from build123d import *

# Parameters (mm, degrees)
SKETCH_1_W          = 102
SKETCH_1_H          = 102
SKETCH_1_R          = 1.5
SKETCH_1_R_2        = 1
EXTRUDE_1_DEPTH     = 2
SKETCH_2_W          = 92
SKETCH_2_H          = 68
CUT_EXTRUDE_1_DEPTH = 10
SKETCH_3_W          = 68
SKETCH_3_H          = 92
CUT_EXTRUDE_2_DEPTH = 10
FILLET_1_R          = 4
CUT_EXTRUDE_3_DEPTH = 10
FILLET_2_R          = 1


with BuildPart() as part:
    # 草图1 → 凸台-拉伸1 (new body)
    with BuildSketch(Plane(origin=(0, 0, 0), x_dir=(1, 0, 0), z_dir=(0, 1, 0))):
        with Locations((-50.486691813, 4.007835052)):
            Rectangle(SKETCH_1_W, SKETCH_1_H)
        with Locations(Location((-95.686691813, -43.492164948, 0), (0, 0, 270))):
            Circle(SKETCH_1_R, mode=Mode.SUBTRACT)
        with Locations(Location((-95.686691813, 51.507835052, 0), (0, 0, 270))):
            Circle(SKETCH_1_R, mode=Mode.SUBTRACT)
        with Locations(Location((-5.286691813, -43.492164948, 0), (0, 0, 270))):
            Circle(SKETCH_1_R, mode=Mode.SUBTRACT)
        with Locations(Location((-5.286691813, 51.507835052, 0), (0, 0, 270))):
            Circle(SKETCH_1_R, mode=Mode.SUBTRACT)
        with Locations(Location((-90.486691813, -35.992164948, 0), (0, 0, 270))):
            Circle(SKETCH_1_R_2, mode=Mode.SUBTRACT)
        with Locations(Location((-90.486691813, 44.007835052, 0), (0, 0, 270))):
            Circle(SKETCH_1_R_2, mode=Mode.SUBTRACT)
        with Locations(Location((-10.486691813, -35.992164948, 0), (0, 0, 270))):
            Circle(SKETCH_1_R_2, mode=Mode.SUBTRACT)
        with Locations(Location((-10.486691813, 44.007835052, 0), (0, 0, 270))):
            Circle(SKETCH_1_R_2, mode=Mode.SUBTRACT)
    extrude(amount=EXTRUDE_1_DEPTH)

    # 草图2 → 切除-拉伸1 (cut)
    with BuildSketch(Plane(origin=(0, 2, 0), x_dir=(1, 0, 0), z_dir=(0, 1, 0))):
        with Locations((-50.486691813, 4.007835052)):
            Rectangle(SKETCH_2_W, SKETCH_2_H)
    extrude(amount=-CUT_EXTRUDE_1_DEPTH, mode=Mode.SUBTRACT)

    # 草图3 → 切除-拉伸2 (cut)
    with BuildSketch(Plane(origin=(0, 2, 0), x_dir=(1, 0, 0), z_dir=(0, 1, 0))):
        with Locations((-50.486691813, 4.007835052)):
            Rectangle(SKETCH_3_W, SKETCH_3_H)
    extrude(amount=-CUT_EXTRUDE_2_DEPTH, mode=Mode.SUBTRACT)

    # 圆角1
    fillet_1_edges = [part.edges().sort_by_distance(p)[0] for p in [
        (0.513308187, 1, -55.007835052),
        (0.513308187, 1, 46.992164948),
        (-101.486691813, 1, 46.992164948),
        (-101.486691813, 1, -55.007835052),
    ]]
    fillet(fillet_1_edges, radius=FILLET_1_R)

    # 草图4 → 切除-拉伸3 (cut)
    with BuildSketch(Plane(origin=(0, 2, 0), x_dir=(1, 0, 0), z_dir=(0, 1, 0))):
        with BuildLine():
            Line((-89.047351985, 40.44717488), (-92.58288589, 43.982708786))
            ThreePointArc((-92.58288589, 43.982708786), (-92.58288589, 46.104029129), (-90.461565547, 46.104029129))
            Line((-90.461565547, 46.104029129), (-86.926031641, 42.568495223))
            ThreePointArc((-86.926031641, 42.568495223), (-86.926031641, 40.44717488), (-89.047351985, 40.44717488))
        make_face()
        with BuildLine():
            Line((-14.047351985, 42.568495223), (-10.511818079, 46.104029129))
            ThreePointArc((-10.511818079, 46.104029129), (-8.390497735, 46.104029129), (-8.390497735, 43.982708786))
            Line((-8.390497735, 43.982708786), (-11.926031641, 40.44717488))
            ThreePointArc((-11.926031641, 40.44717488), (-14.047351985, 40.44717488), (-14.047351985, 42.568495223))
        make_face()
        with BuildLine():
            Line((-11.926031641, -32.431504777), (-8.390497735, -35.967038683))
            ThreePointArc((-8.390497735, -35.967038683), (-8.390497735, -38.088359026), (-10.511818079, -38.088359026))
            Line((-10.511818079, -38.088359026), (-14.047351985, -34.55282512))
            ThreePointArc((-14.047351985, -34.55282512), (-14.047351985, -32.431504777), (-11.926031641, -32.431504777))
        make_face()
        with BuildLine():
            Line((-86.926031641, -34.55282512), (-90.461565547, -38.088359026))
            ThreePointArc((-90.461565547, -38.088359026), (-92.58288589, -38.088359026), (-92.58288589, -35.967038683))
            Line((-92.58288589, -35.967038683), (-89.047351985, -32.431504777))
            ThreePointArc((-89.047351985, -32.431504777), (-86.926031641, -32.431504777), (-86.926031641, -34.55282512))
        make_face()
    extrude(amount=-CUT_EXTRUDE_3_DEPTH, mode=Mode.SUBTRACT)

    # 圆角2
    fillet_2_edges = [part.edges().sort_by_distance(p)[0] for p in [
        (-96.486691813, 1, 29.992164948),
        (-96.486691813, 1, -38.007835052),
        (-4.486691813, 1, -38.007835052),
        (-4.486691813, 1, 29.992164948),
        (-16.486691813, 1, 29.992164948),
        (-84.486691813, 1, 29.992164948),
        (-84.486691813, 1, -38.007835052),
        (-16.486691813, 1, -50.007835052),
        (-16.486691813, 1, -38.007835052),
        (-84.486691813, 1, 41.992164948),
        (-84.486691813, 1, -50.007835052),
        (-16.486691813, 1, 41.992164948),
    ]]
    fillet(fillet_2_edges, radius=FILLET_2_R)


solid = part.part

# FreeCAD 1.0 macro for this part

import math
import FreeCAD as App
import Part
import Sketcher

V = App.Vector


def edges_at(feature, points):
    """Names of the edges that pass closest to the given points."""
    edges = feature.Shape.Edges
    near = lambda p: min(range(len(edges)), key=lambda i: edges[i].distToShape(Part.Vertex(*p))[0])
    return sorted({f"Edge{near(p) + 1}" for p in points})


def add_polygon(sketch, points):
    """Adds a closed chain of lines whose ends are joined by coincident constraints."""
    first, n = sketch.GeometryCount, len(points)
    for a, b in zip(points, points[1:] + points[:1]):
        sketch.addGeometry(Part.LineSegment(App.Vector(*a, 0), App.Vector(*b, 0)), False)
    for i in range(n):
        sketch.addConstraint(Sketcher.Constraint("Coincident", first + i, 2, first + (i + 1) % n, 1))

doc = App.newDocument("Part")
params = doc.addObject("Spreadsheet::Sheet", "Params")
for row, (alias, value) in enumerate([
    ("sketch1_diameter", "3 mm"),
    ("sketch1_diameter2", "2 mm"),
    ("sketch1_width", "102 mm"),
    ("pad1_length", "2 mm"),
    ("sketch2_width", "92 mm"),
    ("sketch2_height", "68 mm"),
    ("pocket1_length", "10 mm"),
    ("sketch3_width", "68 mm"),
    ("sketch3_height", "92 mm"),
    ("pocket2_length", "10 mm"),
    ("fillet_radius", "4 mm"),
    ("sketch4_radius", "1.5 mm"),
    ("sketch4_length", "5 mm"),
    ("pocket3_length", "10 mm"),
    ("fillet2_radius", "1 mm"),
], start=1):
    params.set(f"A{row}", alias)
    params.set(f"B{row}", "=" + value)
    params.setAlias(f"B{row}", alias)

body = doc.addObject("PartDesign::Body", "Body")

# Sketch on XZ plane
sketch1 = body.newObject("Sketcher::SketchObject", "Sketch")
sketch1.AttachmentSupport = (doc.getObject("XZ_Plane"), [""])
sketch1.MapMode = "FlatFace"
add_polygon(sketch1, [(-101.486692, -55.007835), (-101.486692, 46.992165), (0.513308, 46.992165), (0.513308, -55.007835)])  # lines 0-3
sketch1.addGeometry(Part.Circle(V(-95.686692, 43.492165, 0), V(0, 0, 1), 1.5), False)  # 4
sketch1.addGeometry(Part.Circle(V(-90.486692, 35.992165, 0), V(0, 0, 1), 1), False)  # 5
sketch1.addGeometry(Part.Circle(V(-5.286692, 43.492165, 0), V(0, 0, 1), 1.5), False)  # 6
sketch1.addGeometry(Part.Circle(V(-10.486692, 35.992165, 0), V(0, 0, 1), 1), False)  # 7
sketch1.addGeometry(Part.Circle(V(-90.486692, -44.007835, 0), V(0, 0, 1), 1), False)  # 8
sketch1.addGeometry(Part.Circle(V(-95.686692, -51.507835, 0), V(0, 0, 1), 1.5), False)  # 9
sketch1.addGeometry(Part.Circle(V(-10.486692, -44.007835, 0), V(0, 0, 1), 1), False)  # 10
sketch1.addGeometry(Part.Circle(V(-5.286692, -51.507835, 0), V(0, 0, 1), 1.5), False)  # 11
sketch1.addConstraint([
    Sketcher.Constraint("Vertical", 0),
    Sketcher.Constraint("Horizontal", 1),
    Sketcher.Constraint("Vertical", 2),
    Sketcher.Constraint("Horizontal", 3),
    Sketcher.Constraint("Equal", 4, 6),
    Sketcher.Constraint("Equal", 5, 7),
    Sketcher.Constraint("Equal", 7, 8),
    Sketcher.Constraint("Equal", 6, 9),
    Sketcher.Constraint("Equal", 8, 10),
    Sketcher.Constraint("Equal", 9, 11),
    Sketcher.Constraint("Horizontal", 4, 3, 6, 3),
    Sketcher.Constraint("Horizontal", 5, 3, 7, 3),
    Sketcher.Constraint("Horizontal", 8, 3, 10, 3),
    Sketcher.Constraint("Horizontal", 9, 3, 11, 3),
    Sketcher.Constraint("Vertical", 5, 3, 8, 3),
    Sketcher.Constraint("Vertical", 4, 3, 9, 3),
    Sketcher.Constraint("Vertical", 7, 3, 10, 3),
    Sketcher.Constraint("Vertical", 6, 3, 11, 3),
    Sketcher.Constraint("Equal", 3, 0),
    Sketcher.Constraint("Diameter", 4, 3.0),
    Sketcher.Constraint("Diameter", 5, 2.0),
    Sketcher.Constraint("DistanceX", 1, 1, 1, 2, 102.0),
    Sketcher.Constraint("DistanceX", 5, 3, 7, 3, 80.0),
    Sketcher.Constraint("DistanceY", 8, 3, 5, 3, 80.0),
    Sketcher.Constraint("DistanceY", 9, 3, 4, 3, 95.0),
    Sketcher.Constraint("DistanceX", 0, 2, 5, 3, 11.0),
    Sketcher.Constraint("DistanceY", 5, 3, 0, 2, 11.0),
    Sketcher.Constraint("DistanceX", 4, 3, 5, 3, 5.2),
    Sketcher.Constraint("DistanceY", 5, 3, 4, 3, 7.5),
    Sketcher.Constraint("DistanceX", 5, 3, 6, 3, 85.2),
    Sketcher.Constraint("DistanceX", 4, 3, -1, 1, 95.686692),
    Sketcher.Constraint("DistanceY", -1, 1, 4, 3, 43.492165),
])
sketch1.setExpression("Constraints[23]", "Params.sketch1_diameter")
sketch1.setExpression("Constraints[24]", "Params.sketch1_diameter2")
sketch1.setExpression("Constraints[25]", "Params.sketch1_width")
pad1 = body.newObject("PartDesign::Pad", "Pad")
pad1.Profile = sketch1
pad1.setExpression("Length", "Params.pad1_length")
pad1.Reversed = True

# Sketch on XZ plane
sketch2 = body.newObject("Sketcher::SketchObject", "Sketch001")
sketch2.AttachmentSupport = (doc.getObject("XZ_Plane"), [""])
sketch2.MapMode = "FlatFace"
sketch2.AttachmentOffset = App.Placement(V(0, 0, -2), App.Rotation())
add_polygon(sketch2, [(-96.486692, -38.007835), (-96.486692, 29.992165), (-4.486692, 29.992165), (-4.486692, -38.007835)])  # lines 0-3
sketch2.addConstraint([
    Sketcher.Constraint("Vertical", 0),
    Sketcher.Constraint("Horizontal", 1),
    Sketcher.Constraint("Vertical", 2),
    Sketcher.Constraint("Horizontal", 3),
    Sketcher.Constraint("DistanceX", 1, 1, 1, 2, 92.0),
    Sketcher.Constraint("DistanceY", 0, 1, 0, 2, 68.0),
    Sketcher.Constraint("DistanceX", 0, 2, -1, 1, 96.486692),
    Sketcher.Constraint("DistanceY", -1, 1, 0, 2, 29.992165),
])
sketch2.setExpression("Constraints[8]", "Params.sketch2_width")
sketch2.setExpression("Constraints[9]", "Params.sketch2_height")
pocket1 = body.newObject("PartDesign::Pocket", "Pocket")
pocket1.Profile = sketch2
pocket1.setExpression("Length", "Params.pocket1_length")
pocket1.Reversed = True

# Sketch on XZ plane
sketch3 = body.newObject("Sketcher::SketchObject", "Sketch002")
sketch3.AttachmentSupport = (doc.getObject("XZ_Plane"), [""])
sketch3.MapMode = "FlatFace"
sketch3.AttachmentOffset = App.Placement(V(0, 0, -2), App.Rotation())
add_polygon(sketch3, [(-84.486692, -50.007835), (-84.486692, 41.992165), (-16.486692, 41.992165), (-16.486692, -50.007835)])  # lines 0-3
sketch3.addConstraint([
    Sketcher.Constraint("Vertical", 0),
    Sketcher.Constraint("Horizontal", 1),
    Sketcher.Constraint("Vertical", 2),
    Sketcher.Constraint("Horizontal", 3),
    Sketcher.Constraint("DistanceX", 1, 1, 1, 2, 68.0),
    Sketcher.Constraint("DistanceY", 0, 1, 0, 2, 92.0),
    Sketcher.Constraint("DistanceX", 0, 2, -1, 1, 84.486692),
    Sketcher.Constraint("DistanceY", -1, 1, 0, 2, 41.992165),
])
sketch3.setExpression("Constraints[8]", "Params.sketch3_width")
sketch3.setExpression("Constraints[9]", "Params.sketch3_height")
pocket2 = body.newObject("PartDesign::Pocket", "Pocket001")
pocket2.Profile = sketch3
pocket2.setExpression("Length", "Params.pocket2_length")
pocket2.Reversed = True
doc.recompute()

fillet = body.newObject("PartDesign::Fillet", "Fillet")
fillet.Base = (pocket2, edges_at(pocket2, [
    (0.513, 1, -55.008),
    (0.513, 1, 46.992),
    (-101.487, 1, 46.992),
    (-101.487, 1, -55.008),
]))
fillet.setExpression("Radius", "Params.fillet_radius")

# Sketch on XZ plane
sketch4 = body.newObject("Sketcher::SketchObject", "Sketch003")
sketch4.AttachmentSupport = (doc.getObject("XZ_Plane"), [""])
sketch4.MapMode = "FlatFace"
sketch4.AttachmentOffset = App.Placement(V(0, 0, -2), App.Rotation())
sketch4.addGeometry([
    Part.LineSegment(V(-92.582886, -43.982709, 0), V(-89.047352, -40.447175, 0)),  # 0
    Part.ArcOfCircle(Part.Circle(V(-87.986692, -41.507835, 0), V(0, 0, 1), 1.5), math.radians(-45), math.radians(135)),  # 1
    Part.LineSegment(V(-86.926032, -42.568495, 0), V(-90.461566, -46.104029, 0)),  # 2
    Part.ArcOfCircle(Part.Circle(V(-91.522226, -45.043369, 0), V(0, 0, 1), 1.5), math.radians(135), math.radians(315)),  # 3
    Part.LineSegment(V(-10.511818, -46.104029, 0), V(-14.047352, -42.568495, 0)),  # 4
    Part.ArcOfCircle(Part.Circle(V(-12.986692, -41.507835, 0), V(0, 0, 1), 1.5), math.radians(45), math.radians(225)),  # 5
    Part.LineSegment(V(-11.926032, -40.447175, 0), V(-8.390498, -43.982709, 0)),  # 6
    Part.ArcOfCircle(Part.Circle(V(-9.451158, -45.043369, 0), V(0, 0, 1), 1.5), math.radians(-135), math.radians(45)),  # 7
    Part.LineSegment(V(-8.390498, 35.967039, 0), V(-11.926032, 32.431505, 0)),  # 8
    Part.ArcOfCircle(Part.Circle(V(-12.986692, 33.492165, 0), V(0, 0, 1), 1.5), math.radians(135), math.radians(315)),  # 9
    Part.LineSegment(V(-14.047352, 34.552825, 0), V(-10.511818, 38.088359, 0)),  # 10
    Part.ArcOfCircle(Part.Circle(V(-9.451158, 37.027699, 0), V(0, 0, 1), 1.5), math.radians(-45), math.radians(135)),  # 11
    Part.LineSegment(V(-90.461566, 38.088359, 0), V(-86.926032, 34.552825, 0)),  # 12
    Part.ArcOfCircle(Part.Circle(V(-87.986692, 33.492165, 0), V(0, 0, 1), 1.5), math.radians(-135), math.radians(45)),  # 13
    Part.LineSegment(V(-89.047352, 32.431505, 0), V(-92.582886, 35.967039, 0)),  # 14
    Part.ArcOfCircle(Part.Circle(V(-91.522226, 37.027699, 0), V(0, 0, 1), 1.5), math.radians(45), math.radians(225)),  # 15
], False)
sketch4.addConstraint([
    Sketcher.Constraint("Tangent", 0, 2, 1, 2),
    Sketcher.Constraint("Tangent", 1, 1, 2, 1),
    Sketcher.Constraint("Tangent", 2, 2, 3, 2),
    Sketcher.Constraint("Tangent", 3, 1, 0, 1),
    Sketcher.Constraint("Tangent", 4, 2, 5, 2),
    Sketcher.Constraint("Tangent", 5, 1, 6, 1),
    Sketcher.Constraint("Tangent", 6, 2, 7, 2),
    Sketcher.Constraint("Tangent", 7, 1, 4, 1),
    Sketcher.Constraint("Tangent", 8, 2, 9, 2),
    Sketcher.Constraint("Tangent", 9, 1, 10, 1),
    Sketcher.Constraint("Tangent", 10, 2, 11, 2),
    Sketcher.Constraint("Tangent", 11, 1, 8, 1),
    Sketcher.Constraint("Tangent", 12, 2, 13, 2),
    Sketcher.Constraint("Tangent", 13, 1, 14, 1),
    Sketcher.Constraint("Tangent", 14, 2, 15, 2),
    Sketcher.Constraint("Tangent", 15, 1, 12, 1),
    Sketcher.Constraint("Equal", 1, 3),
    Sketcher.Constraint("Equal", 3, 5),
    Sketcher.Constraint("Equal", 5, 7),
    Sketcher.Constraint("Equal", 7, 9),
    Sketcher.Constraint("Equal", 9, 11),
    Sketcher.Constraint("Equal", 11, 13),
    Sketcher.Constraint("Equal", 13, 15),
    Sketcher.Constraint("Perpendicular", 2, 4),
    Sketcher.Constraint("Perpendicular", 6, 8),
    Sketcher.Constraint("Perpendicular", 10, 12),
    Sketcher.Constraint("Horizontal", 1, 3, 5, 3),
    Sketcher.Constraint("Horizontal", 3, 3, 7, 3),
    Sketcher.Constraint("Horizontal", 9, 3, 13, 3),
    Sketcher.Constraint("Horizontal", 11, 3, 15, 3),
    Sketcher.Constraint("Horizontal", 1, 1, 4, 2),
    Sketcher.Constraint("Vertical", 5, 3, 9, 3),
    Sketcher.Constraint("Vertical", 7, 3, 11, 3),
    Sketcher.Constraint("Vertical", 1, 3, 13, 3),
    Sketcher.Constraint("Radius", 1, 1.5),
    Sketcher.Constraint("Distance", 0, 5.0),
    Sketcher.Constraint("DistanceX", 1, 3, 5, 3, 75.0),
    Sketcher.Constraint("DistanceY", 5, 3, 9, 3, 75.0),
    Sketcher.Constraint("DistanceY", -1, 1, 11, 3, 37.027699),
    Sketcher.Constraint("DistanceX", 1, 3, -1, 1, 87.986692),
])
sketch4.setExpression("Constraints[34]", "Params.sketch4_radius")
sketch4.setExpression("Constraints[35]", "Params.sketch4_length")
pocket3 = body.newObject("PartDesign::Pocket", "Pocket002")
pocket3.Profile = sketch4
pocket3.setExpression("Length", "Params.pocket3_length")
pocket3.Reversed = True
doc.recompute()

fillet2 = body.newObject("PartDesign::Fillet", "Fillet001")
fillet2.Base = (pocket3, edges_at(pocket3, [
    (-96.487, 1, 29.992),
    (-96.487, 1, -38.008),
    (-4.487, 1, -38.008),
    (-4.487, 1, 29.992),
    (-16.487, 1, 29.992),
    (-84.487, 1, 29.992),
    (-84.487, 1, -38.008),
    (-16.487, 1, -50.008),
    (-16.487, 1, -38.008),
    (-84.487, 1, 41.992),
    (-84.487, 1, -50.008),
    (-16.487, 1, 41.992),
]))
fillet2.setExpression("Radius", "Params.fillet2_radius")

doc.recompute()
